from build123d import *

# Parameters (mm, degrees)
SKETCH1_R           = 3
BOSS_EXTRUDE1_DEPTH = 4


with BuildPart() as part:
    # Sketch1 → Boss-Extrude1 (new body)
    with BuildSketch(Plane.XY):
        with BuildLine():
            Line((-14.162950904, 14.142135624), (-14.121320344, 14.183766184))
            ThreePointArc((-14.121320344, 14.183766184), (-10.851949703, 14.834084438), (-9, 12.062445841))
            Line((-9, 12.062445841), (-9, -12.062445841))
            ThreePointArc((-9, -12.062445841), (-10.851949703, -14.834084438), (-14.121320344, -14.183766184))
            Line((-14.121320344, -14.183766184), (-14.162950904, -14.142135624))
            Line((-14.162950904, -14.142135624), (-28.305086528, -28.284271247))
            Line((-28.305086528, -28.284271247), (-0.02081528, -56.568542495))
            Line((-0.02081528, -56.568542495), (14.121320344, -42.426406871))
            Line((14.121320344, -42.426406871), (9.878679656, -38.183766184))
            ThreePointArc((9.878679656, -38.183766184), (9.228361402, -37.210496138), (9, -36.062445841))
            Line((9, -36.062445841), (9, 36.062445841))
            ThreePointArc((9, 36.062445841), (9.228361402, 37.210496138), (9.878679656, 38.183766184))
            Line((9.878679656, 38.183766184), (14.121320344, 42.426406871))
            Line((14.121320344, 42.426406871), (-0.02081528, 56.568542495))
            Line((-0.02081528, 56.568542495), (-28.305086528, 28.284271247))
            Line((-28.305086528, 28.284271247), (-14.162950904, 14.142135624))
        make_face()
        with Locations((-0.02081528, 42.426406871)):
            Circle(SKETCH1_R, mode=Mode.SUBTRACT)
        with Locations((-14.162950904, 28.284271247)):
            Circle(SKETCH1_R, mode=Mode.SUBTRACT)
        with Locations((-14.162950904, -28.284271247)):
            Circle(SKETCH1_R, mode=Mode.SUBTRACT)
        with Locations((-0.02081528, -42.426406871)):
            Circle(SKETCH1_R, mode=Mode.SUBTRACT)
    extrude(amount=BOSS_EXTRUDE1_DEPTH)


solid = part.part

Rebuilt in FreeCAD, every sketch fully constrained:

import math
import FreeCAD as App
import Part
import Sketcher
from FreeCAD import Vector
Q = App.Units.Quantity

doc = App.newDocument("Part")
body = doc.addObject("PartDesign::Body", "Body")

# Sketch on XY plane
sketch1 = doc.addObject("Sketcher::SketchObject", "Sketch")
body.addObject(sketch1)
sketch1.AttachmentSupport = (doc.XY_Plane, [""])
sketch1.MapMode = "FlatFace"
sketch1.addGeometry([
    Part.LineSegment(Vector(-14.16, 14.14, 0), Vector(-14.12, 14.18, 0)),  # 0
    Part.ArcOfCircle(Part.Circle(Vector(-12, 12.06, 0), Vector(0, 0, 1), 3), math.radians(0), math.radians(135)),  # 1
    Part.LineSegment(Vector(-9, 12.06, 0), Vector(-9, -12.06, 0)),  # 2
    Part.ArcOfCircle(Part.Circle(Vector(-12, -12.06, 0), Vector(0, 0, 1), 3), math.radians(-135), math.radians(0)),  # 3
    Part.LineSegment(Vector(-14.12, -14.18, 0), Vector(-14.16, -14.14, 0)),  # 4
    Part.LineSegment(Vector(-14.16, -14.14, 0), Vector(-28.31, -28.28, 0)),  # 5
    Part.LineSegment(Vector(-28.31, -28.28, 0), Vector(-0.02, -56.57, 0)),  # 6
    Part.LineSegment(Vector(-0.02, -56.57, 0), Vector(14.12, -42.43, 0)),  # 7
    Part.LineSegment(Vector(14.12, -42.43, 0), Vector(9.88, -38.18, 0)),  # 8
    Part.ArcOfCircle(Part.Circle(Vector(12, -36.06, 0), Vector(0, 0, 1), 3), math.radians(180), math.radians(225)),  # 9
    Part.LineSegment(Vector(9, -36.06, 0), Vector(9, 36.06, 0)),  # 10
    Part.ArcOfCircle(Part.Circle(Vector(12, 36.06, 0), Vector(0, 0, 1), 3), math.radians(135), math.radians(180)),  # 11
    Part.LineSegment(Vector(9.88, 38.18, 0), Vector(14.12, 42.43, 0)),  # 12
    Part.LineSegment(Vector(14.12, 42.43, 0), Vector(-0.02, 56.57, 0)),  # 13
    Part.LineSegment(Vector(-0.02, 56.57, 0), Vector(-28.31, 28.28, 0)),  # 14
    Part.LineSegment(Vector(-28.31, 28.28, 0), Vector(-14.16, 14.14, 0)),  # 15
    Part.Circle(Vector(-14.16, -28.28, 0), Vector(0, 0, 1), 3),  # 16
    Part.Circle(Vector(-0.02, -42.43, 0), Vector(0, 0, 1), 3),  # 17
    Part.Circle(Vector(-14.16, 28.28, 0), Vector(0, 0, 1), 3),  # 18
    Part.Circle(Vector(-0.02, 42.43, 0), Vector(0, 0, 1), 3),  # 19
], False)
sketch1.addConstraint([
    Sketcher.Constraint("Tangent", 0, 2, 1, 2),
    Sketcher.Constraint("Tangent", 1, 1, 2, 1),
    Sketcher.Constraint("Tangent", 2, 2, 3, 2),
    Sketcher.Constraint("Tangent", 3, 1, 4, 1),
    Sketcher.Constraint("Coincident", 4, 2, 5, 1),
    Sketcher.Constraint("Coincident", 5, 2, 6, 1),
    Sketcher.Constraint("Coincident", 6, 2, 7, 1),
    Sketcher.Constraint("Coincident", 7, 2, 8, 1),
    Sketcher.Constraint("Tangent", 8, 2, 9, 2),
    Sketcher.Constraint("Tangent", 9, 1, 10, 1),
    Sketcher.Constraint("Tangent", 10, 2, 11, 2),
    Sketcher.Constraint("Tangent", 11, 1, 12, 1),
    Sketcher.Constraint("Coincident", 12, 2, 13, 1),
    Sketcher.Constraint("Coincident", 13, 2, 14, 1),
    Sketcher.Constraint("Coincident", 14, 2, 15, 1),
    Sketcher.Constraint("Coincident", 15, 2, 0, 1),
    Sketcher.Constraint("Vertical", 2),
    Sketcher.Constraint("Vertical", 10),
    Sketcher.Constraint("Equal", 1, 3),
    Sketcher.Constraint("Equal", 3, 9),
    Sketcher.Constraint("Equal", 9, 11),
    Sketcher.Constraint("Equal", 11, 16),
    Sketcher.Constraint("Equal", 16, 17),
    Sketcher.Constraint("Equal", 17, 18),
    Sketcher.Constraint("Equal", 18, 19),
    Sketcher.Constraint("Symmetric", 16, 3, 18, 3, -1),
    Sketcher.Constraint("Symmetric", 17, 3, 19, 3, -1),
    Sketcher.Constraint("Symmetric", 0, 2, 3, 1, -1),
    Sketcher.Constraint("Symmetric", 8, 2, 11, 1, -1),
    Sketcher.Constraint("Symmetric", 6, 2, 13, 2, -1),
    Sketcher.Constraint("Symmetric", 5, 2, 14, 2, -1),
    Sketcher.Constraint("Perpendicular", 0, 4),
    Sketcher.Constraint("Perpendicular", 5, 6),
    Sketcher.Constraint("Perpendicular", 6, 7),
    Sketcher.Constraint("Perpendicular", 7, 8),
    Sketcher.Constraint("Perpendicular", 8, 12),
    Sketcher.Constraint("Perpendicular", 12, 13),
    Sketcher.Constraint("Perpendicular", 14, 15),
    Sketcher.Constraint("Horizontal", 16, 3, 5, 2),
    Sketcher.Constraint("Horizontal", 17, 3, 7, 2),
    Sketcher.Constraint("Vertical", 18, 3, 4, 2),
    Sketcher.Constraint("Vertical", 19, 3, 6, 2),
    Sketcher.Constraint("Equal", 5, 7),
    Sketcher.Constraint("Diameter", 16, Q("6 mm")),
    Sketcher.Constraint("Distance", 5, Q("20 mm")),
    Sketcher.Constraint("Distance", 6, Q("40 mm")),
    Sketcher.Constraint("Distance", 8, Q("6 mm")),
    Sketcher.Constraint("DistanceX", 1, 3, -1, 1, Q("12 mm")),
    Sketcher.Constraint("DistanceX", -1, 1, 9, 3, Q("12 mm")),
    Sketcher.Constraint("DistanceY", 2, 2, 2, 1, Q("24.124892 mm")),
])
pad1 = doc.addObject("PartDesign::Pad", "Pad")
body.addObject(pad1)
pad1.Profile = sketch1
pad1.Length = 4

doc.recompute()
